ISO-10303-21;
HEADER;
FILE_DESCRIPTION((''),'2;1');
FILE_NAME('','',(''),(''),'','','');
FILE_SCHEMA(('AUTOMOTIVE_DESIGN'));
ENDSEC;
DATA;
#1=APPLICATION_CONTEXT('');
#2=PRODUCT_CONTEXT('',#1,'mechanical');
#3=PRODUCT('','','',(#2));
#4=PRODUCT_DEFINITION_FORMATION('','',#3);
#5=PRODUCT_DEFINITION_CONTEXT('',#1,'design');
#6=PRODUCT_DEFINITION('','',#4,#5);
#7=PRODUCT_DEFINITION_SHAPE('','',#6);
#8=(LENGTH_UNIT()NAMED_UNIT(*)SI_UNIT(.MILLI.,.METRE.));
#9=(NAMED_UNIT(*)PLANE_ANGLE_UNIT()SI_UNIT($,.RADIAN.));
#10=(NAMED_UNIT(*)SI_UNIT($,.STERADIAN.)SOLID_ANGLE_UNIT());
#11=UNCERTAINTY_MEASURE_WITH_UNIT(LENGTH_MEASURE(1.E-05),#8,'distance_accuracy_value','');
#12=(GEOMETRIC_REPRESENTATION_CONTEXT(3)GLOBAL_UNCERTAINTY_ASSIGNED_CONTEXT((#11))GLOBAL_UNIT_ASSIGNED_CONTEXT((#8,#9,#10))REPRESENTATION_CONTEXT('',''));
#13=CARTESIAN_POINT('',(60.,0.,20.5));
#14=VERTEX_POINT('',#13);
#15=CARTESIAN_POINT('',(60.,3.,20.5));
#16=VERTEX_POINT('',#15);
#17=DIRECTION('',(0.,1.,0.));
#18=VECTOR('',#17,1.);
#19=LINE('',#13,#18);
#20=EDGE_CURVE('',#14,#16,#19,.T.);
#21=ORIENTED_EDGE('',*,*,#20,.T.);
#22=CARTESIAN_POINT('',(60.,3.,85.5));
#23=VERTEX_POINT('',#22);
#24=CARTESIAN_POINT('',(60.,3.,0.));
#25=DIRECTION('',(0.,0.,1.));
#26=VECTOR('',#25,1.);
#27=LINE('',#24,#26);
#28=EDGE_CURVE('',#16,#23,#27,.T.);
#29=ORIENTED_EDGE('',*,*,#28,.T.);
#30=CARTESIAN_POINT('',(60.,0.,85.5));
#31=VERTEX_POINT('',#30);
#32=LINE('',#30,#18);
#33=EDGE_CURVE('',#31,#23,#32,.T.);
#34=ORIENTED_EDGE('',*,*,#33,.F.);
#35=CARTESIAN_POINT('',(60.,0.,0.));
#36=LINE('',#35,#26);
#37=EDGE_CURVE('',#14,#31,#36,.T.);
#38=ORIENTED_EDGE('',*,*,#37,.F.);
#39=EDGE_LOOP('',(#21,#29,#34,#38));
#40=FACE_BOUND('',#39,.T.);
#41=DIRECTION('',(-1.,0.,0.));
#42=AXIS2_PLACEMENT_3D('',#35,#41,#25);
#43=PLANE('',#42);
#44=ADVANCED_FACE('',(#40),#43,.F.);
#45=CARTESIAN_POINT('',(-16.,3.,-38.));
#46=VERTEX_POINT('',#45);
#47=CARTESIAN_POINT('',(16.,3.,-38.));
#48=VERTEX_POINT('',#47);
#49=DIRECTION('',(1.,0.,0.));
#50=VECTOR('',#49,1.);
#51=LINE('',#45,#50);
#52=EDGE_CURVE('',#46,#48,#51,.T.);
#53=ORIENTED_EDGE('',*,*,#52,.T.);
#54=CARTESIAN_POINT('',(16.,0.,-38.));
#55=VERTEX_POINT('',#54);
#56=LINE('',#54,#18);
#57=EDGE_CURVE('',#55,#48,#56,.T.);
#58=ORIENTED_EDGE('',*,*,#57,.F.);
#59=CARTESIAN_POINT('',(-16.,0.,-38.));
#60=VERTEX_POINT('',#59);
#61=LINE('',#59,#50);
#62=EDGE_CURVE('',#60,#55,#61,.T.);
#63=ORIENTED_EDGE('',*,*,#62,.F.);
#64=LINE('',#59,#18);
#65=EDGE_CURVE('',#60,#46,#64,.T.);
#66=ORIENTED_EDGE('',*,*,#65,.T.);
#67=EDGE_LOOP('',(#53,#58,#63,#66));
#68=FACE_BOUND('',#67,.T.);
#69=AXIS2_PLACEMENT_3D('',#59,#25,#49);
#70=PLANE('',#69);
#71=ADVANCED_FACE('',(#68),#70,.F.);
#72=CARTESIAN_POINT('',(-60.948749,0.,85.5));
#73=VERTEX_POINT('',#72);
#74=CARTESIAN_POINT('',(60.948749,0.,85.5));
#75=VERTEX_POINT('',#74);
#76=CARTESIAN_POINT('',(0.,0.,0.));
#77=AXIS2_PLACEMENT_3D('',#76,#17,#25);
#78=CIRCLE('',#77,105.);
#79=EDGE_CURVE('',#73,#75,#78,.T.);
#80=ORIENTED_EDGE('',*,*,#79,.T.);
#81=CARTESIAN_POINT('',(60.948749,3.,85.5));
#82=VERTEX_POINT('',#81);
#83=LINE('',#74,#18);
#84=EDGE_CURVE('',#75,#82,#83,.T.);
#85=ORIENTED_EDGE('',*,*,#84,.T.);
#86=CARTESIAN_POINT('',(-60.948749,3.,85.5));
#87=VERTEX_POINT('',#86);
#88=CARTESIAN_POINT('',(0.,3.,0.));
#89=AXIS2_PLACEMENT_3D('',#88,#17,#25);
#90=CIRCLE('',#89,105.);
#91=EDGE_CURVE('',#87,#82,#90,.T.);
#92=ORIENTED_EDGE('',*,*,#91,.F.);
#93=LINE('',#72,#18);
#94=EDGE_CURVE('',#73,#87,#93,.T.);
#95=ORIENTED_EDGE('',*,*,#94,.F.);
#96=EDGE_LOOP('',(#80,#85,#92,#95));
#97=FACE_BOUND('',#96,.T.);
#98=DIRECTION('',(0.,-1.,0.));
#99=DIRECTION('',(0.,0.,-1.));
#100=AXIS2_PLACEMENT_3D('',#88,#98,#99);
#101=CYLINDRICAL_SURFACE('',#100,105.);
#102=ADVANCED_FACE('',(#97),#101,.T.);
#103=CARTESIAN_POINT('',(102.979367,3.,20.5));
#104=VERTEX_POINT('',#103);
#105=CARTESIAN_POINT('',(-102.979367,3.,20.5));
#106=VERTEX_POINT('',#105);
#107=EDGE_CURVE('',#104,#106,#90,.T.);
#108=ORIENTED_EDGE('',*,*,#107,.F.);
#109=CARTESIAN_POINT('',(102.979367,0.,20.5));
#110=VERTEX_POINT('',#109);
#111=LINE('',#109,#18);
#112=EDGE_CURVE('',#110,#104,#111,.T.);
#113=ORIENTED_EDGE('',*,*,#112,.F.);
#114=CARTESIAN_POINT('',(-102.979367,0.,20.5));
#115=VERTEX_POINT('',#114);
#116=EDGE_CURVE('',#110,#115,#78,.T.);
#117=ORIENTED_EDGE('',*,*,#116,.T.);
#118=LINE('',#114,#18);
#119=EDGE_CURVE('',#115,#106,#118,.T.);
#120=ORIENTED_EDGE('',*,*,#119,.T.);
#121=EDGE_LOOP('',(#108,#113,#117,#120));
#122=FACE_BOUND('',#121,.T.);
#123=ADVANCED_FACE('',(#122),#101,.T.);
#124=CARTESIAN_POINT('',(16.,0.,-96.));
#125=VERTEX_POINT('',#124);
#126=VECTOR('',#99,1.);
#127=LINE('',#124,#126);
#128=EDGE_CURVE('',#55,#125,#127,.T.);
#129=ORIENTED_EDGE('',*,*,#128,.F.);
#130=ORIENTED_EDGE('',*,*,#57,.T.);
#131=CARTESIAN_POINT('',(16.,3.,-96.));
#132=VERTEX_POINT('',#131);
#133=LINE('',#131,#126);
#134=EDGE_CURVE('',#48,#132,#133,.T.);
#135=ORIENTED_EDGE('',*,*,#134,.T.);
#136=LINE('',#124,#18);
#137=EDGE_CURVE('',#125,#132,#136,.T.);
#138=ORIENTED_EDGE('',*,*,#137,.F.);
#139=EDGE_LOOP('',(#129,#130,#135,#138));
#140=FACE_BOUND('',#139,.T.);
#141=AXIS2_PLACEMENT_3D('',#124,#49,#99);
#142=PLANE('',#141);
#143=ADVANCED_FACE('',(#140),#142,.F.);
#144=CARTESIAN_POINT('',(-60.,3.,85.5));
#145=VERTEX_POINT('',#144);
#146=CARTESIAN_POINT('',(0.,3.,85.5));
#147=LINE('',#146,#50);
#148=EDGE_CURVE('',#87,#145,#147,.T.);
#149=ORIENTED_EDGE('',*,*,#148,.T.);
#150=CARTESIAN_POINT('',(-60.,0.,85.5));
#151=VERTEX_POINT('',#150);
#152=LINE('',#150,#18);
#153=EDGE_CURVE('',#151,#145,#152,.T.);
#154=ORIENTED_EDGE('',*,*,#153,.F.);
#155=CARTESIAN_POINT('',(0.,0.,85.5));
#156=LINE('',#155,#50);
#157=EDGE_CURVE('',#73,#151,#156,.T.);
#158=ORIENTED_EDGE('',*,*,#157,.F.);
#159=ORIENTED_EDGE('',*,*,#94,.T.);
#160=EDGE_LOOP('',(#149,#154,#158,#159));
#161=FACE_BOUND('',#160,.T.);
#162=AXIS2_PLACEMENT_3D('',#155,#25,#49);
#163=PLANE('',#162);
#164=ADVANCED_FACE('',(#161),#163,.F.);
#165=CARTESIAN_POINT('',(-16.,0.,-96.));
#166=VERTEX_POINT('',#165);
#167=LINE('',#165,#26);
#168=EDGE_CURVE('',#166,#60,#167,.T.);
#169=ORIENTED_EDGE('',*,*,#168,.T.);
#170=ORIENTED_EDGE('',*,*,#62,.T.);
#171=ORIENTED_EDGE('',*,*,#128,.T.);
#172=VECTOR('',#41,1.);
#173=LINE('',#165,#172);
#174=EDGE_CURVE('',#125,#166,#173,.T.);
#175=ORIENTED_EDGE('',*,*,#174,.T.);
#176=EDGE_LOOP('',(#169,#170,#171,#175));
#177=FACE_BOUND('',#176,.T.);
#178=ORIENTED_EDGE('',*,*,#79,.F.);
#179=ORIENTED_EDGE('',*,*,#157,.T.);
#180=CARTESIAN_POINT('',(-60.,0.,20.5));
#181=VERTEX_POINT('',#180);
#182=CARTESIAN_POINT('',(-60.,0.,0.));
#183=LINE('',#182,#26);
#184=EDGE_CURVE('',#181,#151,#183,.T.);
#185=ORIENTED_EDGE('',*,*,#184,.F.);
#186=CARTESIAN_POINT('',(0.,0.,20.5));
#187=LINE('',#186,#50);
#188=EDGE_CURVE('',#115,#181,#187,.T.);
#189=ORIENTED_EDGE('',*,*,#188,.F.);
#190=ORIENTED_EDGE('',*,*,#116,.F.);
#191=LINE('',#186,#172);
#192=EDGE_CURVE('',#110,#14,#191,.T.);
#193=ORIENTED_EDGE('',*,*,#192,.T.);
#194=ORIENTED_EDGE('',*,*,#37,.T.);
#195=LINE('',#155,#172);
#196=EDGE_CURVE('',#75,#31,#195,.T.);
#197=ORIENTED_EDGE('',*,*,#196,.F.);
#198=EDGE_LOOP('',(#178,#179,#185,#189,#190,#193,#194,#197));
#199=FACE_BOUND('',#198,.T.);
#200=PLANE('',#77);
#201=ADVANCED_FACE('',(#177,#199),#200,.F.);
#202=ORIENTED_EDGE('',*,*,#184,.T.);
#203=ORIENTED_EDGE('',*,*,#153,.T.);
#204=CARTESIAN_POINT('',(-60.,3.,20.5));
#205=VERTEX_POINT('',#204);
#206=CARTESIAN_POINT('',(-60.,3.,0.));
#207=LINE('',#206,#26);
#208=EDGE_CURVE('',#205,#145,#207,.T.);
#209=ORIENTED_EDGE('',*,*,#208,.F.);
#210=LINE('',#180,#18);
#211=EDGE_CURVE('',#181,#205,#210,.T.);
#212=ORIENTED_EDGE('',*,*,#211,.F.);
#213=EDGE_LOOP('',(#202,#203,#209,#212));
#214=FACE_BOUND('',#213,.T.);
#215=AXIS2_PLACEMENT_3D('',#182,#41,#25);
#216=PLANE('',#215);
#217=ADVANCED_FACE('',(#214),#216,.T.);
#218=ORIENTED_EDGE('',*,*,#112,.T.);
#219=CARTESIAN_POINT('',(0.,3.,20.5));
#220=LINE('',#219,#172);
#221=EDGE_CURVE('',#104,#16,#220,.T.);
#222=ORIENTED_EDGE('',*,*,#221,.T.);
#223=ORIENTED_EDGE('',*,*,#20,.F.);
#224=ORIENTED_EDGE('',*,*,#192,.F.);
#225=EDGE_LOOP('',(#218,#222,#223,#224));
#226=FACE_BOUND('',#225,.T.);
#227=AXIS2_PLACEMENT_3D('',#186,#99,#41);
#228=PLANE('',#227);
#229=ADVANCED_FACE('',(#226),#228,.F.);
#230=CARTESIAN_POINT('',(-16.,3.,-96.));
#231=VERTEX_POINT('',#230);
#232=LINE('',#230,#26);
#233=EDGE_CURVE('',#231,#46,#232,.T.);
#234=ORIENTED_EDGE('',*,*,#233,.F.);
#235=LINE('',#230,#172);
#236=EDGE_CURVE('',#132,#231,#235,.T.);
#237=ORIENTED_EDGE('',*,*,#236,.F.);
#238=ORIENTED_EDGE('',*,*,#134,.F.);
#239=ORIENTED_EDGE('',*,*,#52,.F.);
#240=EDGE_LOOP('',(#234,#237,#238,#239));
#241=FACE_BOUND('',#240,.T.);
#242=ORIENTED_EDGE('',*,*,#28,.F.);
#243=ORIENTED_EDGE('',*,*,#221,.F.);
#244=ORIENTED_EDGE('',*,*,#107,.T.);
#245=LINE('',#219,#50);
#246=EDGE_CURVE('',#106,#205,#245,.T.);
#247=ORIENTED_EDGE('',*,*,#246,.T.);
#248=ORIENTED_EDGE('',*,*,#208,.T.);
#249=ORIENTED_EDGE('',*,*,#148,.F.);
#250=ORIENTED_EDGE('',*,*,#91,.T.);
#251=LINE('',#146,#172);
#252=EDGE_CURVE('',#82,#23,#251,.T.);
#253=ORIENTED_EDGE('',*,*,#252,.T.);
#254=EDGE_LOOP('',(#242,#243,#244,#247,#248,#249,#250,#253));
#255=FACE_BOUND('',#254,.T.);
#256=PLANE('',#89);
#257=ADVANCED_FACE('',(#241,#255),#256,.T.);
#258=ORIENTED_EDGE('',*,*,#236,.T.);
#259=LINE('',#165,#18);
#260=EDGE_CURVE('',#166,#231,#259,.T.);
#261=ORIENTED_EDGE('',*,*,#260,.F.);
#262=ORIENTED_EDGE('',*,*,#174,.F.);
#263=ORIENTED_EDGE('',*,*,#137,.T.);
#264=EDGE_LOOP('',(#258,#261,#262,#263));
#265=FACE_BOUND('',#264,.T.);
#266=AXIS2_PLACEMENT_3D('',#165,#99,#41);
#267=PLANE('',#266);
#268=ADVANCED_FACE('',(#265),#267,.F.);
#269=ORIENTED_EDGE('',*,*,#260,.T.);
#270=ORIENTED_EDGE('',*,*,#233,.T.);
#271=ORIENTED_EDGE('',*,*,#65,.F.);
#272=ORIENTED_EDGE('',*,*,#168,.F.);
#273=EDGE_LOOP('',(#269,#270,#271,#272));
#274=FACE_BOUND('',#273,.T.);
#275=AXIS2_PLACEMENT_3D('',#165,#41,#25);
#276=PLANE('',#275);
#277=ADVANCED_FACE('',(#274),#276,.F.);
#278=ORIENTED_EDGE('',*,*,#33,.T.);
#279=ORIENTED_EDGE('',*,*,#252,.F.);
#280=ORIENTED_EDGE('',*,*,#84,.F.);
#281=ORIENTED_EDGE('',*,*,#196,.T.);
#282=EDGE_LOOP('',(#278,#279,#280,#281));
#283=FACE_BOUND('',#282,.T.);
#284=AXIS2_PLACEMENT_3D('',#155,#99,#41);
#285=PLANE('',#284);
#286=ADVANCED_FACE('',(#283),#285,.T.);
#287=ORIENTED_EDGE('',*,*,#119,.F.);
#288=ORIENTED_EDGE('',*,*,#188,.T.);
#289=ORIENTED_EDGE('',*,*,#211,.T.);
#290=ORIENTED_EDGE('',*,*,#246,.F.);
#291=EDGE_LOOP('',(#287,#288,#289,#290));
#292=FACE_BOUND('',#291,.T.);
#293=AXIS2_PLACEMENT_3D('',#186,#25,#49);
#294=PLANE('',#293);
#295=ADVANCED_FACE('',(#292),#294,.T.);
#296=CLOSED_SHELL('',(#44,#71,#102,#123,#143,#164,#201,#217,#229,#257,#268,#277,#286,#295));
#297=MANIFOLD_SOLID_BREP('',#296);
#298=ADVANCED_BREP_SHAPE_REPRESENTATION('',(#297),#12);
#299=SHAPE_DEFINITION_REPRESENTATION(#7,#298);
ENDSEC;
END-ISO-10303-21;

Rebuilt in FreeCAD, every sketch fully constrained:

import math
import FreeCAD as App
import Part
import Sketcher

V = App.Vector


def add_polygon(sketch, points):
    """Adds a closed chain of lines whose ends are joined by coincident constraints."""
    first, n = sketch.GeometryCount, len(points)
    for a, b in zip(points, points[1:] + points[:1]):
        sketch.addGeometry(Part.LineSegment(App.Vector(*a, 0), App.Vector(*b, 0)), False)
    for i in range(n):
        sketch.addConstraint(Sketcher.Constraint("Coincident", first + i, 2, first + (i + 1) % n, 1))

doc = App.newDocument("Part")
body = doc.addObject("PartDesign::Body", "Body")

sketch1 = doc.addObject("Sketcher::SketchObject", "Sketch")
body.addObject(sketch1)
sketch1.AttachmentSupport = (doc.XZ_Plane, [""])
sketch1.MapMode = "FlatFace"
sketch1.addGeometry(Part.Circle(V(0, 0, 0), V(0, 0, 1), 105), False)
sketch1.addConstraint([
    Sketcher.Constraint("Coincident", 0, 3, -1, 1),
    Sketcher.Constraint("Diameter", 0, 210.0),
])
pad1 = doc.addObject("PartDesign::Pad", "Pad")
body.addObject(pad1)
pad1.Profile = sketch1
pad1.Length = 3
pad1.Reversed = True

sketch2 = doc.addObject("Sketcher::SketchObject", "Sketch001")
body.addObject(sketch2)
sketch2.AttachmentSupport = (doc.XZ_Plane, [""])
sketch2.MapMode = "FlatFace"
sketch2.AttachmentOffset = App.Placement(V(0, 0, -3), App.Rotation())
sketch2.addGeometry([
    Part.LineSegment(V(-60, 20.5, 0), V(-103, 20.5, 0)),
    Part.ArcOfCircle(Part.Circle(V(0, 0, 0), V(0, 0, 1), 105), math.radians(125), math.radians(169)),
    Part.LineSegment(V(-60.9, 85.5, 0), V(-60, 85.5, 0)),
    Part.LineSegment(V(-60, 85.5, 0), V(-60, 20.5, 0)),
    Part.ArcOfCircle(Part.Circle(V(0, 0, 0), V(0, 0, 1), 105), math.radians(11), math.radians(55)),
    Part.LineSegment(V(103, 20.5, 0), V(60, 20.5, 0)),
    Part.LineSegment(V(60, 20.5, 0), V(60, 85.5, 0)),
    Part.LineSegment(V(60, 85.5, 0), V(60.9, 85.5, 0)),
], False)
sketch2.addConstraint([
    Sketcher.Constraint("Coincident", 0, 2, 1, 2),
    Sketcher.Constraint("Coincident", 1, 1, 2, 1),
    Sketcher.Constraint("Coincident", 2, 2, 3, 1),
    Sketcher.Constraint("Coincident", 3, 2, 0, 1),
    Sketcher.Constraint("Coincident", 4, 1, 5, 1),
    Sketcher.Constraint("Coincident", 5, 2, 6, 1),
    Sketcher.Constraint("Coincident", 6, 2, 7, 1),
    Sketcher.Constraint("Coincident", 7, 2, 4, 2),
    Sketcher.Constraint("Horizontal", 0),
    Sketcher.Constraint("Horizontal", 2),
    Sketcher.Constraint("Vertical", 3),
    Sketcher.Constraint("Horizontal", 5),
    Sketcher.Constraint("Vertical", 6),
    Sketcher.Constraint("Horizontal", 7),
    Sketcher.Constraint("Coincident", 1, 3, -1, 1),
    Sketcher.Constraint("Coincident", 4, 3, -1, 1),
    Sketcher.Constraint("Equal", 1, 4),
    Sketcher.Constraint("Symmetric", 3, 2, 5, 2, -2),
    Sketcher.Constraint("Horizontal", 2, 2, 6, 2),
    Sketcher.Constraint("Radius", 1, 105.0),
    Sketcher.Constraint("DistanceY", 3, 2, 3, 1, 65.0),
    Sketcher.Constraint("DistanceX", 2, 2, -1, 1, 60.0),
    Sketcher.Constraint("DistanceY", -1, 1, 0, 2, 20.5),
])
pocket1 = doc.addObject("PartDesign::Pocket", "Pocket")
body.addObject(pocket1)
pocket1.Profile = sketch2
pocket1.Type = "ThroughAll"
pocket1.Reversed = True

sketch3 = doc.addObject("Sketcher::SketchObject", "Sketch002")
body.addObject(sketch3)
sketch3.AttachmentSupport = (doc.XZ_Plane, [""])
sketch3.MapMode = "FlatFace"
sketch3.AttachmentOffset = App.Placement(V(0, 0, -3), App.Rotation())
add_polygon(sketch3, [(-16, -96), (-16, -38), (16, -38), (16, -96)])
sketch3.addConstraint([
    Sketcher.Constraint("Vertical", 0),
    Sketcher.Constraint("Horizontal", 1),
    Sketcher.Constraint("Vertical", 2),
    Sketcher.Constraint("Horizontal", 3),
    Sketcher.Constraint("DistanceX", 1, 1, 1, 2, 32.0),
    Sketcher.Constraint("DistanceY", 0, 1, 0, 2, 58.0),
    Sketcher.Constraint("DistanceX", 0, 2, -1, 1, 16.0),
    Sketcher.Constraint("DistanceY", 0, 2, -1, 1, 38.0),
])
pocket2 = doc.addObject("PartDesign::Pocket", "Pocket001")
body.addObject(pocket2)
pocket2.Profile = sketch3
pocket2.Type = "ThroughAll"
pocket2.Reversed = True

doc.recompute()
